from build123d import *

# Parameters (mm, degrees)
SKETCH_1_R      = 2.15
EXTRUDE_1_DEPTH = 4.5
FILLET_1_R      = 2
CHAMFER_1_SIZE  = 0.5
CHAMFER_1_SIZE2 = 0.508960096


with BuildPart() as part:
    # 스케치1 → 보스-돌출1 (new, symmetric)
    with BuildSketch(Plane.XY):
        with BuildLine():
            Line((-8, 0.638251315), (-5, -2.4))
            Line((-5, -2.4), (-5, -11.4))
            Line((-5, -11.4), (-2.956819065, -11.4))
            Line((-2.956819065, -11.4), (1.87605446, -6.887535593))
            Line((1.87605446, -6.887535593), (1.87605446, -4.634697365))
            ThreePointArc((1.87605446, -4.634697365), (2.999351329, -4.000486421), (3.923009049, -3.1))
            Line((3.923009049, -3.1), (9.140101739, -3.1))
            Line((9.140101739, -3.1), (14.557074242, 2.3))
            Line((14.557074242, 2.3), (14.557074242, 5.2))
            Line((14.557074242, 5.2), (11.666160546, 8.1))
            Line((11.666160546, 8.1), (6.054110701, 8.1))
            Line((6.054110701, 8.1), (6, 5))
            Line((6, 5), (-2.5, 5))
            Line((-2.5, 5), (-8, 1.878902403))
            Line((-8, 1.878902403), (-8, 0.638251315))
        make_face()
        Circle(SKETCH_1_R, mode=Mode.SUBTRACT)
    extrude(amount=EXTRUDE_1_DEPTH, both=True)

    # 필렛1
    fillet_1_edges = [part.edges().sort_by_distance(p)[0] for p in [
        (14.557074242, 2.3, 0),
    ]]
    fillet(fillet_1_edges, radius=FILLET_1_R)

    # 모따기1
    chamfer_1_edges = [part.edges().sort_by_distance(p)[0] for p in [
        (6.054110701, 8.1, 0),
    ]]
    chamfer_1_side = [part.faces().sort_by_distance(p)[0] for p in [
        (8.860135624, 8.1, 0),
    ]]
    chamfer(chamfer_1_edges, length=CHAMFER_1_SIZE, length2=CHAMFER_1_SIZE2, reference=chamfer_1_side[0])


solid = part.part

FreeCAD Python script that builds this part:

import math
import FreeCAD as App
import Part
import Sketcher
Q = App.Units.Quantity


def edges_at(feature, points):
    """Names of the edges that pass closest to the given points."""
    edges = feature.Shape.Edges
    near = lambda p: min(range(len(edges)), key=lambda i: edges[i].distToShape(Part.Vertex(*p))[0])
    return sorted({f"Edge{near(p) + 1}" for p in points})

doc = App.newDocument("Part")
body = doc.addObject("PartDesign::Body", "Body")

# Sketch on XY plane
sketch1 = doc.addObject("Sketcher::SketchObject", "Sketch")
body.addObject(sketch1)
sketch1.AttachmentSupport = (doc.XY_Plane, [""])
sketch1.MapMode = "FlatFace"
sketch1.addGeometry(Part.LineSegment(App.Vector(-8, 0.6, 0), App.Vector(-5, -2.4, 0)), False)
sketch1.addGeometry(Part.LineSegment(App.Vector(-5, -2.4, 0), App.Vector(-5, -11.4, 0)), False)
sketch1.addGeometry(Part.LineSegment(App.Vector(-5, -11.4, 0), App.Vector(-3, -11.4, 0)), False)
sketch1.addGeometry(Part.LineSegment(App.Vector(-3, -11.4, 0), App.Vector(1.9, -6.9, 0)), False)
sketch1.addGeometry(Part.LineSegment(App.Vector(1.9, -6.9, 0), App.Vector(1.9, -4.6, 0)), False)
sketch1.addGeometry(Part.ArcOfCircle(Part.Circle(App.Vector(0, 0, 0), App.Vector(0, 0, 1), 5), math.radians(-68), math.radians(-38)), False)
sketch1.addGeometry(Part.LineSegment(App.Vector(3.9, -3.1, 0), App.Vector(9.1, -3.1, 0)), False)
sketch1.addGeometry(Part.LineSegment(App.Vector(9.1, -3.1, 0), App.Vector(14.6, 2.3, 0)), False)
sketch1.addGeometry(Part.LineSegment(App.Vector(14.6, 2.3, 0), App.Vector(14.6, 5.2, 0)), False)
sketch1.addGeometry(Part.LineSegment(App.Vector(14.6, 5.2, 0), App.Vector(11.7, 8.1, 0)), False)
sketch1.addGeometry(Part.LineSegment(App.Vector(11.7, 8.1, 0), App.Vector(6.1, 8.1, 0)), False)
sketch1.addGeometry(Part.LineSegment(App.Vector(6.1, 8.1, 0), App.Vector(6, 5, 0)), False)
sketch1.addGeometry(Part.LineSegment(App.Vector(6, 5, 0), App.Vector(-2.5, 5, 0)), False)
sketch1.addGeometry(Part.LineSegment(App.Vector(-2.5, 5, 0), App.Vector(-8, 1.9, 0)), False)
sketch1.addGeometry(Part.LineSegment(App.Vector(-8, 1.9, 0), App.Vector(-8, 0.6, 0)), False)
sketch1.addGeometry(Part.Circle(App.Vector(0, 0, 0), App.Vector(0, 0, 1), 2.1), False)
sketch1.addConstraint(Sketcher.Constraint("Coincident", 0, 2, 1, 1))
sketch1.addConstraint(Sketcher.Constraint("Coincident", 1, 2, 2, 1))
sketch1.addConstraint(Sketcher.Constraint("Coincident", 2, 2, 3, 1))
sketch1.addConstraint(Sketcher.Constraint("Coincident", 3, 2, 4, 1))
sketch1.addConstraint(Sketcher.Constraint("Coincident", 4, 2, 5, 1))
sketch1.addConstraint(Sketcher.Constraint("Coincident", 5, 2, 6, 1))
sketch1.addConstraint(Sketcher.Constraint("Coincident", 6, 2, 7, 1))
sketch1.addConstraint(Sketcher.Constraint("Coincident", 7, 2, 8, 1))
sketch1.addConstraint(Sketcher.Constraint("Coincident", 8, 2, 9, 1))
sketch1.addConstraint(Sketcher.Constraint("Coincident", 9, 2, 10, 1))
sketch1.addConstraint(Sketcher.Constraint("Coincident", 10, 2, 11, 1))
sketch1.addConstraint(Sketcher.Constraint("Coincident", 11, 2, 12, 1))
sketch1.addConstraint(Sketcher.Constraint("Coincident", 12, 2, 13, 1))
sketch1.addConstraint(Sketcher.Constraint("Coincident", 13, 2, 14, 1))
sketch1.addConstraint(Sketcher.Constraint("Coincident", 14, 2, 0, 1))
sketch1.addConstraint(Sketcher.Constraint("Vertical", 1))
sketch1.addConstraint(Sketcher.Constraint("Horizontal", 2))
sketch1.addConstraint(Sketcher.Constraint("Vertical", 4))
sketch1.addConstraint(Sketcher.Constraint("Horizontal", 6))
sketch1.addConstraint(Sketcher.Constraint("Vertical", 8))
sketch1.addConstraint(Sketcher.Constraint("Horizontal", 10))
sketch1.addConstraint(Sketcher.Constraint("Horizontal", 12))
sketch1.addConstraint(Sketcher.Constraint("Vertical", 14))
sketch1.addConstraint(Sketcher.Constraint("Coincident", 5, 3, -1, 1))
sketch1.addConstraint(Sketcher.Constraint("Coincident", 15, 3, -1, 1))
sketch1.addConstraint(Sketcher.Constraint("Perpendicular", 7, 9))
sketch1.addConstraint(Sketcher.Constraint("Radius", 5, Q("5 mm")))
sketch1.addConstraint(Sketcher.Constraint("Diameter", 15, Q("4.3 mm")))
sketch1.addConstraint(Sketcher.Constraint("DistanceY", 1, 2, 1, 1, Q("9 mm")))
sketch1.addConstraint(Sketcher.Constraint("Angle", 11, Q("-91 deg")))
sketch1.addConstraint(Sketcher.Constraint("DistanceX", 12, 2, 12, 1, Q("8.5 mm")))
sketch1.addConstraint(Sketcher.Constraint("DistanceY", 8, 1, 8, 2, Q("2.9 mm")))
sketch1.addConstraint(Sketcher.Constraint("DistanceX", 0, 2, -1, 1, Q("5 mm")))
sketch1.addConstraint(Sketcher.Constraint("DistanceX", -1, 1, 11, 2, Q("6 mm")))
sketch1.addConstraint(Sketcher.Constraint("DistanceY", -1, 1, 11, 2, Q("5 mm")))
sketch1.addConstraint(Sketcher.Constraint("DistanceX", 13, 2, -1, 1, Q("8 mm")))
sketch1.addConstraint(Sketcher.Constraint("DistanceY", 0, 2, -1, 1, Q("2.4 mm")))
sketch1.addConstraint(Sketcher.Constraint("DistanceY", 5, 2, -1, 1, Q("3.1 mm")))
sketch1.addConstraint(Sketcher.Constraint("DistanceY", -1, 1, 7, 2, Q("2.3 mm")))
sketch1.addConstraint(Sketcher.Constraint("DistanceY", -1, 1, 9, 2, Q("8.1 mm")))
sketch1.addConstraint(Sketcher.Constraint("Distance", 9, Q("4.094799 mm")))
sketch1.addConstraint(Sketcher.Constraint("DistanceX", 2, 1, 2, 2, Q("2.043181 mm")))
sketch1.addConstraint(Sketcher.Constraint("DistanceX", 10, 2, 10, 1, Q("5.61205 mm")))
sketch1.addConstraint(Sketcher.Constraint("DistanceY", 4, 1, 4, 2, Q("2.252838 mm")))
sketch1.addConstraint(Sketcher.Constraint("DistanceY", 14, 2, 14, 1, Q("1.240651 mm")))
sketch1.addConstraint(Sketcher.Constraint("DistanceY", 4, 2, 13, 2, Q("6.5136 mm")))
sketch1.addConstraint(Sketcher.Constraint("DistanceY", -1, 1, 14, 2, Q("0.638251 mm")))
pad1 = doc.addObject("PartDesign::Pad", "Pad")
body.addObject(pad1)
pad1.Profile = sketch1
pad1.Length = 9
pad1.Midplane = True
doc.recompute()

fillet = doc.addObject("PartDesign::Fillet", "Fillet")
body.addObject(fillet)
fillet.Base = (pad1, edges_at(pad1, [(14.557, 2.3, 0)]))
fillet.Radius = 2
doc.recompute()

chamfer = doc.addObject("PartDesign::Chamfer", "Chamfer")
body.addObject(chamfer)
chamfer.Base = (fillet, edges_at(fillet, [(6.054, 8.1, 0)]))
chamfer.ChamferType = "Two distances"
chamfer.Size = 0.5
chamfer.Size2 = 0.50896

doc.recompute()
